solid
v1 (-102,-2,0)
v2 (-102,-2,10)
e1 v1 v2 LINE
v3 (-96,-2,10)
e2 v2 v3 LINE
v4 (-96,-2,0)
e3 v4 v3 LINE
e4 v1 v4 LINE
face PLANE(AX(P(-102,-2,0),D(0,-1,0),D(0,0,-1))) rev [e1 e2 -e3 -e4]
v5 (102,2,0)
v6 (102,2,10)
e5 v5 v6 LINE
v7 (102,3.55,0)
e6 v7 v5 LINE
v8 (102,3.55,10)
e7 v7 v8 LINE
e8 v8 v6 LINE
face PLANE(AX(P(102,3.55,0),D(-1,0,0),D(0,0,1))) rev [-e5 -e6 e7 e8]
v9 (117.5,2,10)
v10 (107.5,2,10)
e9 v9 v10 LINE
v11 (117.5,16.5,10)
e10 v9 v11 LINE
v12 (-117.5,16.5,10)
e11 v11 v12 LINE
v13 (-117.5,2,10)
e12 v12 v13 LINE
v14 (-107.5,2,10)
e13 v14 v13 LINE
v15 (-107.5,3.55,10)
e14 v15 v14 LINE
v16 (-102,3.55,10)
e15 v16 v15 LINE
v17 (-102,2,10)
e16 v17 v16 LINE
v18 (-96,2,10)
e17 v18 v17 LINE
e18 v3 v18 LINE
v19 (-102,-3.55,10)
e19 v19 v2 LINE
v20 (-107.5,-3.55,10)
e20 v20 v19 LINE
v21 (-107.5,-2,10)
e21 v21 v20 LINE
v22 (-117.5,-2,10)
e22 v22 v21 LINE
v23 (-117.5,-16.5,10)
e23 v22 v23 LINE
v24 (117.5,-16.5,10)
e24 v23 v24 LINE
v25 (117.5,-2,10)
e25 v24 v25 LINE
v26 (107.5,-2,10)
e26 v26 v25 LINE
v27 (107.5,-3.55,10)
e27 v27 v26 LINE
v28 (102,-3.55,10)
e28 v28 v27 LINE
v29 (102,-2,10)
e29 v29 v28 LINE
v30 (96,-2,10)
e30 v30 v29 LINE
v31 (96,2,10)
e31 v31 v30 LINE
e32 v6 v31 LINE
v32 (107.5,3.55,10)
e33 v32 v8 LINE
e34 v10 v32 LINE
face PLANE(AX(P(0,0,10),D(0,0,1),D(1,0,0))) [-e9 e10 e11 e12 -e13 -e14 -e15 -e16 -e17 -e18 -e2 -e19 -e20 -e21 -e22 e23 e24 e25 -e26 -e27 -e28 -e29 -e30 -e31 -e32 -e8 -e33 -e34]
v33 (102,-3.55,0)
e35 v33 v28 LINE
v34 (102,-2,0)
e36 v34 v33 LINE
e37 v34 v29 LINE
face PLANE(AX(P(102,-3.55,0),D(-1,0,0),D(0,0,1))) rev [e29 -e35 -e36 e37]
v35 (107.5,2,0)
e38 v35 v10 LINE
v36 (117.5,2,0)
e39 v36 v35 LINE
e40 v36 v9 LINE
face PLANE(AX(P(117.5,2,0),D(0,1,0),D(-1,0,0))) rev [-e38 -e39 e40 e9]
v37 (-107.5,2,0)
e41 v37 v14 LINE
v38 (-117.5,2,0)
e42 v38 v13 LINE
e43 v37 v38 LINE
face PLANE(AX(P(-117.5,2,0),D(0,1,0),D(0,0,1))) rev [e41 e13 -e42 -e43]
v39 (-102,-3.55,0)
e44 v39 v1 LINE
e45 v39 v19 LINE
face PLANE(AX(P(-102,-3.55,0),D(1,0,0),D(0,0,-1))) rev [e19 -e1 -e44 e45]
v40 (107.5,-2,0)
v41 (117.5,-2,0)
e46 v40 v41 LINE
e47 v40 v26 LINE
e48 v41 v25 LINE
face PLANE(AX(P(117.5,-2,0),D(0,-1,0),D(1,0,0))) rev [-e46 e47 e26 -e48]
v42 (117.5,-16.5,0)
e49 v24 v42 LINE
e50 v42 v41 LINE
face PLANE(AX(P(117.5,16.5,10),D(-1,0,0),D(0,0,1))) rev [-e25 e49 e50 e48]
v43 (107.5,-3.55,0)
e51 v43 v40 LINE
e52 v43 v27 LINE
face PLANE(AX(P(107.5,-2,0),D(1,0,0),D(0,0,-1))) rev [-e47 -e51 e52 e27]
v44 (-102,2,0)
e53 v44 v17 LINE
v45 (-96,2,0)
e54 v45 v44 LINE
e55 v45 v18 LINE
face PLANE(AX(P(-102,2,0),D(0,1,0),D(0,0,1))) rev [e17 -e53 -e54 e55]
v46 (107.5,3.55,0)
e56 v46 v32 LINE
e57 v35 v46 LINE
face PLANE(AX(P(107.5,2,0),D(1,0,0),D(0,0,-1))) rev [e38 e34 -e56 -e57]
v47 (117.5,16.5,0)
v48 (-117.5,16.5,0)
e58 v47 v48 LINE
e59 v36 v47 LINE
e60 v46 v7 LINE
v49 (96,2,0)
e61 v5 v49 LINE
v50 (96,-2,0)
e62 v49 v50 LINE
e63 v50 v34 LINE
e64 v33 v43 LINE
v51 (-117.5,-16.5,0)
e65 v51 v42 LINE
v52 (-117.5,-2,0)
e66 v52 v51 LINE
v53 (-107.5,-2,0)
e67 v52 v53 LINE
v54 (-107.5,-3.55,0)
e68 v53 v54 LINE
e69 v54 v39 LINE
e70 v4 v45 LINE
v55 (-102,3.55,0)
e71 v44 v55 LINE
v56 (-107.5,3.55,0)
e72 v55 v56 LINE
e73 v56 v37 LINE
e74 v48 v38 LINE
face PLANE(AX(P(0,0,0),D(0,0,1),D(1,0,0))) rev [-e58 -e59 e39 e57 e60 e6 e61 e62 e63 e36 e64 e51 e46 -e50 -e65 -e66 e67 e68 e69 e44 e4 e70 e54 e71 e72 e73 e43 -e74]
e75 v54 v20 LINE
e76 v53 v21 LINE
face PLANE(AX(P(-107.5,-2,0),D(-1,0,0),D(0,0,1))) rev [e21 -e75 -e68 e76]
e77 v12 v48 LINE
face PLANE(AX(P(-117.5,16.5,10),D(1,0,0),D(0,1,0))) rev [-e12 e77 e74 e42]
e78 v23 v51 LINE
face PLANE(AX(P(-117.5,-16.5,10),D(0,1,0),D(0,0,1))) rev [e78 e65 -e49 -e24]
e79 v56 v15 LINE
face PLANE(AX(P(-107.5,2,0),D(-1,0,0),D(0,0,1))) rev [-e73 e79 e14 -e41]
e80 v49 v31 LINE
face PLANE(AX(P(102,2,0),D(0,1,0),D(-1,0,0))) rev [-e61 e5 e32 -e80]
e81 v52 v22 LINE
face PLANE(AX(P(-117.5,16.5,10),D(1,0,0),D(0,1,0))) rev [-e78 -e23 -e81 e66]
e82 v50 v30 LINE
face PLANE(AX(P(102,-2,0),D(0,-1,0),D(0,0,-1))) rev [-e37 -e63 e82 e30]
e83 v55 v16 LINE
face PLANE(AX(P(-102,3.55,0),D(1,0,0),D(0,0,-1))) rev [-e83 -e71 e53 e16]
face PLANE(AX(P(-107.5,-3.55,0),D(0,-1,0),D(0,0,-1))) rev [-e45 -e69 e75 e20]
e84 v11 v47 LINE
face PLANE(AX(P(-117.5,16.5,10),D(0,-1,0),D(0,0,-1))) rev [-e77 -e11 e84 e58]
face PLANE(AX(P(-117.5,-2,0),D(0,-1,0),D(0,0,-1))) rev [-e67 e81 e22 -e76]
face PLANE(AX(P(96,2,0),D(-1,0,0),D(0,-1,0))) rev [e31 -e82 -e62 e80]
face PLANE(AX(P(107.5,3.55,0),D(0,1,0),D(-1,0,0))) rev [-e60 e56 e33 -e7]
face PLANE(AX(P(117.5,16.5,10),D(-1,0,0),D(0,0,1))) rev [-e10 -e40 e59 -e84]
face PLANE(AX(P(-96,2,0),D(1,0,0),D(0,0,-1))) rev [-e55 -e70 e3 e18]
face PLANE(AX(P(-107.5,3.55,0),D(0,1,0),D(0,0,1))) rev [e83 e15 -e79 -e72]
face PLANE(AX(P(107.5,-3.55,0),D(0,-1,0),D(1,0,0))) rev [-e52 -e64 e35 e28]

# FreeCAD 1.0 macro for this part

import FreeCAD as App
import Part
import Sketcher

V = App.Vector

doc = App.newDocument("Part")
params = doc.addObject("Spreadsheet::Sheet", "Params")
for row, (alias, value) in enumerate([
    ("sketch1_width", "235 mm"),
    ("sketch1_height", "33 mm"),
    ("pad1_length", "10 mm"),
    ("sketch2_width", "10 mm"),
    ("sketch2_width2", "6 mm"),
    ("sketch2_height", "4 mm"),
    ("sketch2_width3", "5.5 mm"),
    ("sketch2_height2", "1.55 mm"),
    ("pocket1_length", "10 mm"),
], start=1):
    params.set(f"A{row}", alias)
    params.set(f"B{row}", "=" + value)
    params.setAlias(f"B{row}", alias)

body = doc.addObject("PartDesign::Body", "Body")

# Sketch on XY plane
sketch1 = doc.addObject("Sketcher::SketchObject", "Sketch")
body.addObject(sketch1)
sketch1.AttachmentSupport = (doc.XY_Plane, [""])
sketch1.MapMode = "FlatFace"
sketch1.addGeometry([
    Part.LineSegment(V(-117.5, 16.5, 0), V(-117.5, -16.5, 0)),
    Part.LineSegment(V(-117.5, -16.5, 0), V(117.5, -16.5, 0)),
    Part.LineSegment(V(117.5, -16.5, 0), V(117.5, 16.5, 0)),
    Part.LineSegment(V(117.5, 16.5, 0), V(-117.5, 16.5, 0)),
], False)
sketch1.addConstraint([
    Sketcher.Constraint("Coincident", 0, 2, 1, 1),
    Sketcher.Constraint("Coincident", 1, 2, 2, 1),
    Sketcher.Constraint("Coincident", 2, 2, 3, 1),
    Sketcher.Constraint("Coincident", 3, 2, 0, 1),
    Sketcher.Constraint("Vertical", 0),
    Sketcher.Constraint("Horizontal", 1),
    Sketcher.Constraint("Vertical", 2),
    Sketcher.Constraint("Horizontal", 3),
    Sketcher.Constraint("Symmetric", 0, 2, 2, 2, -1, 1),
    Sketcher.Constraint("DistanceX", 1, 1, 1, 2, 235.0),
    Sketcher.Constraint("DistanceY", 0, 2, 0, 1, 33.0),
])
sketch1.setExpression("Constraints[9]", "Params.sketch1_width")
sketch1.setExpression("Constraints[10]", "Params.sketch1_height")
pad1 = doc.addObject("PartDesign::Pad", "Pad")
body.addObject(pad1)
pad1.Profile = sketch1
pad1.setExpression("Length", "Params.pad1_length")

# Sketch on XY plane
sketch2 = doc.addObject("Sketcher::SketchObject", "Sketch001")
body.addObject(sketch2)
sketch2.AttachmentSupport = (doc.XY_Plane, [""])
sketch2.MapMode = "FlatFace"
sketch2.AttachmentOffset = App.Placement(V(0, 0, 10), App.Rotation())
sketch2.addGeometry([
    Part.LineSegment(V(-107.5, 2, 0), V(-117.5, 2, 0)),  # 0
    Part.LineSegment(V(-117.5, 2, 0), V(-117.5, -2, 0)),  # 1
    Part.LineSegment(V(-117.5, -2, 0), V(-107.5, -2, 0)),  # 2
    Part.LineSegment(V(-107.5, -2, 0), V(-107.5, -3.55, 0)),  # 3
    Part.LineSegment(V(-107.5, -3.55, 0), V(-102, -3.55, 0)),  # 4
    Part.LineSegment(V(-102, -3.55, 0), V(-102, -2, 0)),  # 5
    Part.LineSegment(V(-102, -2, 0), V(-96, -2, 0)),  # 6
    Part.LineSegment(V(-96, -2, 0), V(-96, 2, 0)),  # 7
    Part.LineSegment(V(-96, 2, 0), V(-102, 2, 0)),  # 8
    Part.LineSegment(V(-102, 2, 0), V(-102, 3.55, 0)),  # 9
    Part.LineSegment(V(-102, 3.55, 0), V(-107.5, 3.55, 0)),  # 10
    Part.LineSegment(V(-107.5, 3.55, 0), V(-107.5, 2, 0)),  # 11
    Part.LineSegment(V(107.5, -2, 0), V(117.5, -2, 0)),  # 12
    Part.LineSegment(V(117.5, -2, 0), V(117.5, 2, 0)),  # 13
    Part.LineSegment(V(117.5, 2, 0), V(107.5, 2, 0)),  # 14
    Part.LineSegment(V(107.5, 2, 0), V(107.5, 3.55, 0)),  # 15
    Part.LineSegment(V(107.5, 3.55, 0), V(102, 3.55, 0)),  # 16
    Part.LineSegment(V(102, 3.55, 0), V(102, 2, 0)),  # 17
    Part.LineSegment(V(102, 2, 0), V(96, 2, 0)),  # 18
    Part.LineSegment(V(96, 2, 0), V(96, -2, 0)),  # 19
    Part.LineSegment(V(96, -2, 0), V(102, -2, 0)),  # 20
    Part.LineSegment(V(102, -2, 0), V(102, -3.55, 0)),  # 21
    Part.LineSegment(V(102, -3.55, 0), V(107.5, -3.55, 0)),  # 22
    Part.LineSegment(V(107.5, -3.55, 0), V(107.5, -2, 0)),  # 23
], False)
sketch2.addConstraint([
    Sketcher.Constraint("Coincident", 0, 2, 1, 1),
    Sketcher.Constraint("Coincident", 1, 2, 2, 1),
    Sketcher.Constraint("Coincident", 2, 2, 3, 1),
    Sketcher.Constraint("Coincident", 3, 2, 4, 1),
    Sketcher.Constraint("Coincident", 4, 2, 5, 1),
    Sketcher.Constraint("Coincident", 5, 2, 6, 1),
    Sketcher.Constraint("Coincident", 6, 2, 7, 1),
    Sketcher.Constraint("Coincident", 7, 2, 8, 1),
    Sketcher.Constraint("Coincident", 8, 2, 9, 1),
    Sketcher.Constraint("Coincident", 9, 2, 10, 1),
    Sketcher.Constraint("Coincident", 10, 2, 11, 1),
    Sketcher.Constraint("Coincident", 11, 2, 0, 1),
    Sketcher.Constraint("Coincident", 12, 2, 13, 1),
    Sketcher.Constraint("Coincident", 13, 2, 14, 1),
    Sketcher.Constraint("Coincident", 14, 2, 15, 1),
    Sketcher.Constraint("Coincident", 15, 2, 16, 1),
    Sketcher.Constraint("Coincident", 16, 2, 17, 1),
    Sketcher.Constraint("Coincident", 17, 2, 18, 1),
    Sketcher.Constraint("Coincident", 18, 2, 19, 1),
    Sketcher.Constraint("Coincident", 19, 2, 20, 1),
    Sketcher.Constraint("Coincident", 20, 2, 21, 1),
    Sketcher.Constraint("Coincident", 21, 2, 22, 1),
    Sketcher.Constraint("Coincident", 22, 2, 23, 1),
    Sketcher.Constraint("Coincident", 23, 2, 12, 1),
    Sketcher.Constraint("Horizontal", 0),
    Sketcher.Constraint("Vertical", 1),
    Sketcher.Constraint("Horizontal", 2),
    Sketcher.Constraint("Vertical", 3),
    Sketcher.Constraint("Horizontal", 4),
    Sketcher.Constraint("Vertical", 5),
    Sketcher.Constraint("Horizontal", 6),
    Sketcher.Constraint("Vertical", 7),
    Sketcher.Constraint("Horizontal", 8),
    Sketcher.Constraint("Vertical", 9),
    Sketcher.Constraint("Horizontal", 10),
    Sketcher.Constraint("Vertical", 11),
    Sketcher.Constraint("Horizontal", 12),
    Sketcher.Constraint("Vertical", 13),
    Sketcher.Constraint("Horizontal", 14),
    Sketcher.Constraint("Vertical", 15),
    Sketcher.Constraint("Horizontal", 16),
    Sketcher.Constraint("Vertical", 17),
    Sketcher.Constraint("Horizontal", 18),
    Sketcher.Constraint("Vertical", 19),
    Sketcher.Constraint("Horizontal", 20),
    Sketcher.Constraint("Vertical", 21),
    Sketcher.Constraint("Horizontal", 22),
    Sketcher.Constraint("Vertical", 23),
    Sketcher.Constraint("Symmetric", 0, 2, 12, 2, -1, 1),
    Sketcher.Constraint("Symmetric", 2, 2, 14, 2, -1, 1),
    Sketcher.Constraint("Symmetric", 4, 2, 16, 2, -1, 1),
    Sketcher.Constraint("Symmetric", 6, 2, 18, 2, -1, 1),
    Sketcher.Constraint("Symmetric", 8, 2, 20, 2, -1, 1),
    Sketcher.Constraint("Symmetric", 10, 2, 22, 2, -1, 1),
    Sketcher.Constraint("Symmetric", 11, 2, 14, 2, -2),
    Sketcher.Constraint("Symmetric", 9, 2, 16, 2, -2),
    Sketcher.Constraint("Horizontal", 2, 2, 5, 2),
    Sketcher.Constraint("Horizontal", 0, 2, 7, 2),
    Sketcher.Constraint("DistanceX", 0, 2, 0, 1, 10.0),
    Sketcher.Constraint("DistanceX", 6, 1, 6, 2, 6.0),
    Sketcher.Constraint("DistanceY", 1, 2, 1, 1, 4.0),
    Sketcher.Constraint("DistanceX", 4, 1, 4, 2, 5.5),
    Sketcher.Constraint("DistanceX", 4, 2, -1, 1, 102.0),
    Sketcher.Constraint("DistanceY", 3, 2, 3, 1, 1.55),
])
sketch2.setExpression("Constraints[58]", "Params.sketch2_width")
sketch2.setExpression("Constraints[59]", "Params.sketch2_width2")
sketch2.setExpression("Constraints[60]", "Params.sketch2_height")
sketch2.setExpression("Constraints[61]", "Params.sketch2_width3")
sketch2.setExpression("Constraints[63]", "Params.sketch2_height2")
pocket1 = doc.addObject("PartDesign::Pocket", "Pocket")
body.addObject(pocket1)
pocket1.Profile = sketch2
pocket1.setExpression("Length", "Params.pocket1_length")

doc.recompute()
